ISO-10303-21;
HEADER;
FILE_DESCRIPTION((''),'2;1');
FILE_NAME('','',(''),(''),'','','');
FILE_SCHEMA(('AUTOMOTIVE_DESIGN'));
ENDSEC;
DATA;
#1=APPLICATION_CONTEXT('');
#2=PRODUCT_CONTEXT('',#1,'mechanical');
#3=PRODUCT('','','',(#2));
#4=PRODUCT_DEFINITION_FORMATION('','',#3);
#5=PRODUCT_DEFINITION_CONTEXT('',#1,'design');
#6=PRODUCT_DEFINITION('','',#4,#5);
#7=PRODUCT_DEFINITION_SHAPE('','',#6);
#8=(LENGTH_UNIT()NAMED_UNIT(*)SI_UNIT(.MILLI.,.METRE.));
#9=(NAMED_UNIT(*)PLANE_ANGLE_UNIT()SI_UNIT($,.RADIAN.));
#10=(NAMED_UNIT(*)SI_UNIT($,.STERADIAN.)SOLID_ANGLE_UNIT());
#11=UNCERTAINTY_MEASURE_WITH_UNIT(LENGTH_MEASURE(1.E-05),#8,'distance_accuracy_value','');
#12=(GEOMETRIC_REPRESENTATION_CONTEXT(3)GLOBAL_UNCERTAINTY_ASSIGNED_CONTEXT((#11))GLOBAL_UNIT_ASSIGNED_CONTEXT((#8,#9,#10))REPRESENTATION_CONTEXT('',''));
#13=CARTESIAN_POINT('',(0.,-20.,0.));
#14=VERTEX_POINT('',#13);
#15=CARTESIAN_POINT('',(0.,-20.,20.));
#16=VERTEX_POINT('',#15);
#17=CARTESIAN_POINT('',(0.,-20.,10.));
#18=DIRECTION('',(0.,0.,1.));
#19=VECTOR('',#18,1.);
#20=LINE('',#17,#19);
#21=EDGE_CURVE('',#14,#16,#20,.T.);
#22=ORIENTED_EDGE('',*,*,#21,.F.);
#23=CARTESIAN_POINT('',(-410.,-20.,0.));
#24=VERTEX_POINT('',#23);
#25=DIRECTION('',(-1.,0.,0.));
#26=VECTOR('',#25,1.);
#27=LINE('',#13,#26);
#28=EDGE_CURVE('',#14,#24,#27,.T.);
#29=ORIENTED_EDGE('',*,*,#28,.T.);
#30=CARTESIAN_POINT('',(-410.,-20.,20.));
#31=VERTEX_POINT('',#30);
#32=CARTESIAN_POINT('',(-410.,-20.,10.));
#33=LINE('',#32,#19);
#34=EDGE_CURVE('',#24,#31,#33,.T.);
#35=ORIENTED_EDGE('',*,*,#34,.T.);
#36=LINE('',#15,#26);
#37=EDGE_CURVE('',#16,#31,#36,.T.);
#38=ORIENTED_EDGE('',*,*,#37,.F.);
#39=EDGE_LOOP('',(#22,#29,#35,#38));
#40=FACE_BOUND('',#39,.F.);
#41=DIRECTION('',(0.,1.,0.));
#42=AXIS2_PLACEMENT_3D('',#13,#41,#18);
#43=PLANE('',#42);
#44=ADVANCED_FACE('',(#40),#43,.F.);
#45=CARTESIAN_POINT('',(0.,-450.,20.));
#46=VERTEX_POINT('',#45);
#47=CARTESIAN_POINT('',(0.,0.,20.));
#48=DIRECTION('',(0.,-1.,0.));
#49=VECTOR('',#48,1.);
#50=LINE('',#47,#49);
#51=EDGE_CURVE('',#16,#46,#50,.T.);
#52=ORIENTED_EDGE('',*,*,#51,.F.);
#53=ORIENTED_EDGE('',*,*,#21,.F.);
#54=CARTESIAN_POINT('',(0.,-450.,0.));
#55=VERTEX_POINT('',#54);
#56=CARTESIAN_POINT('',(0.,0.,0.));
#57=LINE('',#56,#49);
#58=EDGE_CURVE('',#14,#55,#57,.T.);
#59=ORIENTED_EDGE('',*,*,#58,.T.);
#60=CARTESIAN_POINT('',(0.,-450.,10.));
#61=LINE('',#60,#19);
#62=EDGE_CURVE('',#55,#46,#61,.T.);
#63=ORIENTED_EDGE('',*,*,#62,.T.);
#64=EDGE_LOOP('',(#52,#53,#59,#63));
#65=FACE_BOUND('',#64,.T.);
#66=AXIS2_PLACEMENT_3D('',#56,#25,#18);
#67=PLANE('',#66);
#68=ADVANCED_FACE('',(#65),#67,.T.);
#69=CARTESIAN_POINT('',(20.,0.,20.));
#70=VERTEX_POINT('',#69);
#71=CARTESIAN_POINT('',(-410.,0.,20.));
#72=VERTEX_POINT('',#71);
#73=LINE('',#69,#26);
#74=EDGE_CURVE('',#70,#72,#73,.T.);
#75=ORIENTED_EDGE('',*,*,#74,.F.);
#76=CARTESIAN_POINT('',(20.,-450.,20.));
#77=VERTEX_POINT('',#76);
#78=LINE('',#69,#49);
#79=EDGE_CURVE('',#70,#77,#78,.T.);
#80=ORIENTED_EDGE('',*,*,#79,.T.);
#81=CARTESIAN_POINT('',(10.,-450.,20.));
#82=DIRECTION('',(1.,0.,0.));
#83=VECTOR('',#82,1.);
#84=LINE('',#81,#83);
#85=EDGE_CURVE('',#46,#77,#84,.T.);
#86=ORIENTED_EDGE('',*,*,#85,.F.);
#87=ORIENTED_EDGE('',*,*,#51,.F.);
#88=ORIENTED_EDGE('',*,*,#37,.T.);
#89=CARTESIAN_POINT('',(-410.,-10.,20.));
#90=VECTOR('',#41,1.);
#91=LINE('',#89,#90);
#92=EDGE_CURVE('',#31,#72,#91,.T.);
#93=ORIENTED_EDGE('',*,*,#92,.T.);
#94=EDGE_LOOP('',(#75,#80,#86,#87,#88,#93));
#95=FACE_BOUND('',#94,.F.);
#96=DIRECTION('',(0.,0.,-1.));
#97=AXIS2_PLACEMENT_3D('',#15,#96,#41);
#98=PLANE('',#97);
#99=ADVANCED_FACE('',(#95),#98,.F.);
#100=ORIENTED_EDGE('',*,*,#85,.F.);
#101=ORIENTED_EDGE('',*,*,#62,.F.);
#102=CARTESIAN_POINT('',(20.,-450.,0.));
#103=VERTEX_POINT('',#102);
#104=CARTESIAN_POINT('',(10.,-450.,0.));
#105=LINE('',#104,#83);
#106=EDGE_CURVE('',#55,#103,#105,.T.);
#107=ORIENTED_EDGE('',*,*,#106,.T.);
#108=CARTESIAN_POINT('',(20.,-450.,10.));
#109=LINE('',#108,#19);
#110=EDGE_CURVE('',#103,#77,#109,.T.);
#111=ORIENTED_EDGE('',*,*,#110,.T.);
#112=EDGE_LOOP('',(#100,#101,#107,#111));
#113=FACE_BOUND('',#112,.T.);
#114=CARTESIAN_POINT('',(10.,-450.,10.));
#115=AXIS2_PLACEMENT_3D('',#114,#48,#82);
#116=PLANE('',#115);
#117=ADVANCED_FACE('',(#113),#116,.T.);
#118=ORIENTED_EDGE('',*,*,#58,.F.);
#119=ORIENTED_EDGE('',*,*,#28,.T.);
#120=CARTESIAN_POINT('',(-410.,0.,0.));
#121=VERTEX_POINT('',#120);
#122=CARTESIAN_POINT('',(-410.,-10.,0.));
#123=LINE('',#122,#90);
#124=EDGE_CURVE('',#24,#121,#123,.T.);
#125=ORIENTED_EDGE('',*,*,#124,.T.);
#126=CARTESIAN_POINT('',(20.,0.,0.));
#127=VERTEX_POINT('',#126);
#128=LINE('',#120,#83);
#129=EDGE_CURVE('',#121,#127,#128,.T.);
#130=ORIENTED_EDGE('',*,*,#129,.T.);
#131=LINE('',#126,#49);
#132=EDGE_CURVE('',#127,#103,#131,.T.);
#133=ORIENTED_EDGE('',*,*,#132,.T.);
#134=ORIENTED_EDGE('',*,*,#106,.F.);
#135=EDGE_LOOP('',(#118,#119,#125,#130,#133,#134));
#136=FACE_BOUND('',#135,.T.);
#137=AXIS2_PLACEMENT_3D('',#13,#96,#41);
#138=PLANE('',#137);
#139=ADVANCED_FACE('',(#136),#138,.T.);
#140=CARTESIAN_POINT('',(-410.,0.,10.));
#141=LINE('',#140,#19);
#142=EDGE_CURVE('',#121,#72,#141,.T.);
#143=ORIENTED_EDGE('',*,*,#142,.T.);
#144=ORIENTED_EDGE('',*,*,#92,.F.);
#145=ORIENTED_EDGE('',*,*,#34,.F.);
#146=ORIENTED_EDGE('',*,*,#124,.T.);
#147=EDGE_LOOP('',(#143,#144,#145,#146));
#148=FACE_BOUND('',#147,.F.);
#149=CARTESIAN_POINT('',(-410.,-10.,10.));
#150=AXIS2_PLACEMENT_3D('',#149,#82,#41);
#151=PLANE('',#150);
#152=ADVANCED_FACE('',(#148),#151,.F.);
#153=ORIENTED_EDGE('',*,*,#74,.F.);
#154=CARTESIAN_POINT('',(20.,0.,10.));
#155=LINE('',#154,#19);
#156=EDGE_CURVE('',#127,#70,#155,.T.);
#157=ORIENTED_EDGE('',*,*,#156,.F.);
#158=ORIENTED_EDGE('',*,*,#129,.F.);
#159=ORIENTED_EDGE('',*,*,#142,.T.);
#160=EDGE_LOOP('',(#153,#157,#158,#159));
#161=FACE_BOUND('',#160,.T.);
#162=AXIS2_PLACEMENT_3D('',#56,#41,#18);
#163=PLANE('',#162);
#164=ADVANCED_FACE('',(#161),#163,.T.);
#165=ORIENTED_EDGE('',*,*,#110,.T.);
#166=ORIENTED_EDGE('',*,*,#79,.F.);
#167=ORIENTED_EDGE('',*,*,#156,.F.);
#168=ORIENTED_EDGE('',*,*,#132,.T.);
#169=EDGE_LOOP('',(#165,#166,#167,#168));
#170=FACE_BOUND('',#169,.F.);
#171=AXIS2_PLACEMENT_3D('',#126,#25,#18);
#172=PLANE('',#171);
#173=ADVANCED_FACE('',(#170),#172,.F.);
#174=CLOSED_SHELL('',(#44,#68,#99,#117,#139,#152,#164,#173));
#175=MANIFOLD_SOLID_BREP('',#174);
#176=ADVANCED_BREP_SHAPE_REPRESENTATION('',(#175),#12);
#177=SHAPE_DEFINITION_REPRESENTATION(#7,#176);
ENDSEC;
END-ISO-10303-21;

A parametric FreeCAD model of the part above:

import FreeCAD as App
import Part
import Sketcher
from FreeCAD import Vector
Q = App.Units.Quantity

doc = App.newDocument("Part")
body = doc.addObject("PartDesign::Body", "Body")

sketch1 = body.newObject("Sketcher::SketchObject", "Sketch")
sketch1.AttachmentSupport = (doc.getObject("XZ_Plane"), [""])
sketch1.MapMode = "FlatFace"
sketch1.addGeometry(Part.LineSegment(Vector(0, 20, 0), Vector(0, 0, 0)), False)
sketch1.addGeometry(Part.LineSegment(Vector(0, 0, 0), Vector(20, 0, 0)), False)
sketch1.addGeometry(Part.LineSegment(Vector(20, 0, 0), Vector(20, 20, 0)), False)
sketch1.addGeometry(Part.LineSegment(Vector(20, 20, 0), Vector(0, 20, 0)), False)
sketch1.addConstraint(Sketcher.Constraint("Coincident", 0, 2, 1, 1))
sketch1.addConstraint(Sketcher.Constraint("Coincident", 1, 2, 2, 1))
sketch1.addConstraint(Sketcher.Constraint("Coincident", 2, 2, 3, 1))
sketch1.addConstraint(Sketcher.Constraint("Coincident", 3, 2, 0, 1))
sketch1.addConstraint(Sketcher.Constraint("Vertical", 0))
sketch1.addConstraint(Sketcher.Constraint("Horizontal", 1))
sketch1.addConstraint(Sketcher.Constraint("Vertical", 2))
sketch1.addConstraint(Sketcher.Constraint("Horizontal", 3))
sketch1.addConstraint(Sketcher.Constraint("Coincident", 0, 2, -1, 1))
sketch1.addConstraint(Sketcher.Constraint("Equal", 3, 0))
sketch1.addConstraint(Sketcher.Constraint("DistanceX", 1, 1, 1, 2, Q("20 mm")))
pad1 = body.newObject("PartDesign::Pad", "Pad")
pad1.Profile = sketch1
pad1.Length = 450

sketch2 = body.newObject("Sketcher::SketchObject", "Sketch001")
sketch2.AttachmentSupport = (doc.getObject("YZ_Plane"), [""])
sketch2.MapMode = "FlatFace"
sketch2.addGeometry(Part.LineSegment(Vector(-20, 20, 0), Vector(-20, 0, 0)), False)
sketch2.addGeometry(Part.LineSegment(Vector(-20, 0, 0), Vector(0, 0, 0)), False)
sketch2.addGeometry(Part.LineSegment(Vector(0, 0, 0), Vector(0, 20, 0)), False)
sketch2.addGeometry(Part.LineSegment(Vector(0, 20, 0), Vector(-20, 20, 0)), False)
sketch2.addConstraint(Sketcher.Constraint("Coincident", 0, 2, 1, 1))
sketch2.addConstraint(Sketcher.Constraint("Coincident", 1, 2, 2, 1))
sketch2.addConstraint(Sketcher.Constraint("Coincident", 2, 2, 3, 1))
sketch2.addConstraint(Sketcher.Constraint("Coincident", 3, 2, 0, 1))
sketch2.addConstraint(Sketcher.Constraint("Vertical", 0))
sketch2.addConstraint(Sketcher.Constraint("Horizontal", 1))
sketch2.addConstraint(Sketcher.Constraint("Vertical", 2))
sketch2.addConstraint(Sketcher.Constraint("Horizontal", 3))
sketch2.addConstraint(Sketcher.Constraint("Coincident", 1, 2, -1, 1))
sketch2.addConstraint(Sketcher.Constraint("Equal", 3, 0))
sketch2.addConstraint(Sketcher.Constraint("DistanceX", 1, 1, 1, 2, Q("20 mm")))
pad2 = body.newObject("PartDesign::Pad", "Pad001")
pad2.Profile = sketch2
pad2.Length = 410
pad2.Reversed = True

doc.recompute()
